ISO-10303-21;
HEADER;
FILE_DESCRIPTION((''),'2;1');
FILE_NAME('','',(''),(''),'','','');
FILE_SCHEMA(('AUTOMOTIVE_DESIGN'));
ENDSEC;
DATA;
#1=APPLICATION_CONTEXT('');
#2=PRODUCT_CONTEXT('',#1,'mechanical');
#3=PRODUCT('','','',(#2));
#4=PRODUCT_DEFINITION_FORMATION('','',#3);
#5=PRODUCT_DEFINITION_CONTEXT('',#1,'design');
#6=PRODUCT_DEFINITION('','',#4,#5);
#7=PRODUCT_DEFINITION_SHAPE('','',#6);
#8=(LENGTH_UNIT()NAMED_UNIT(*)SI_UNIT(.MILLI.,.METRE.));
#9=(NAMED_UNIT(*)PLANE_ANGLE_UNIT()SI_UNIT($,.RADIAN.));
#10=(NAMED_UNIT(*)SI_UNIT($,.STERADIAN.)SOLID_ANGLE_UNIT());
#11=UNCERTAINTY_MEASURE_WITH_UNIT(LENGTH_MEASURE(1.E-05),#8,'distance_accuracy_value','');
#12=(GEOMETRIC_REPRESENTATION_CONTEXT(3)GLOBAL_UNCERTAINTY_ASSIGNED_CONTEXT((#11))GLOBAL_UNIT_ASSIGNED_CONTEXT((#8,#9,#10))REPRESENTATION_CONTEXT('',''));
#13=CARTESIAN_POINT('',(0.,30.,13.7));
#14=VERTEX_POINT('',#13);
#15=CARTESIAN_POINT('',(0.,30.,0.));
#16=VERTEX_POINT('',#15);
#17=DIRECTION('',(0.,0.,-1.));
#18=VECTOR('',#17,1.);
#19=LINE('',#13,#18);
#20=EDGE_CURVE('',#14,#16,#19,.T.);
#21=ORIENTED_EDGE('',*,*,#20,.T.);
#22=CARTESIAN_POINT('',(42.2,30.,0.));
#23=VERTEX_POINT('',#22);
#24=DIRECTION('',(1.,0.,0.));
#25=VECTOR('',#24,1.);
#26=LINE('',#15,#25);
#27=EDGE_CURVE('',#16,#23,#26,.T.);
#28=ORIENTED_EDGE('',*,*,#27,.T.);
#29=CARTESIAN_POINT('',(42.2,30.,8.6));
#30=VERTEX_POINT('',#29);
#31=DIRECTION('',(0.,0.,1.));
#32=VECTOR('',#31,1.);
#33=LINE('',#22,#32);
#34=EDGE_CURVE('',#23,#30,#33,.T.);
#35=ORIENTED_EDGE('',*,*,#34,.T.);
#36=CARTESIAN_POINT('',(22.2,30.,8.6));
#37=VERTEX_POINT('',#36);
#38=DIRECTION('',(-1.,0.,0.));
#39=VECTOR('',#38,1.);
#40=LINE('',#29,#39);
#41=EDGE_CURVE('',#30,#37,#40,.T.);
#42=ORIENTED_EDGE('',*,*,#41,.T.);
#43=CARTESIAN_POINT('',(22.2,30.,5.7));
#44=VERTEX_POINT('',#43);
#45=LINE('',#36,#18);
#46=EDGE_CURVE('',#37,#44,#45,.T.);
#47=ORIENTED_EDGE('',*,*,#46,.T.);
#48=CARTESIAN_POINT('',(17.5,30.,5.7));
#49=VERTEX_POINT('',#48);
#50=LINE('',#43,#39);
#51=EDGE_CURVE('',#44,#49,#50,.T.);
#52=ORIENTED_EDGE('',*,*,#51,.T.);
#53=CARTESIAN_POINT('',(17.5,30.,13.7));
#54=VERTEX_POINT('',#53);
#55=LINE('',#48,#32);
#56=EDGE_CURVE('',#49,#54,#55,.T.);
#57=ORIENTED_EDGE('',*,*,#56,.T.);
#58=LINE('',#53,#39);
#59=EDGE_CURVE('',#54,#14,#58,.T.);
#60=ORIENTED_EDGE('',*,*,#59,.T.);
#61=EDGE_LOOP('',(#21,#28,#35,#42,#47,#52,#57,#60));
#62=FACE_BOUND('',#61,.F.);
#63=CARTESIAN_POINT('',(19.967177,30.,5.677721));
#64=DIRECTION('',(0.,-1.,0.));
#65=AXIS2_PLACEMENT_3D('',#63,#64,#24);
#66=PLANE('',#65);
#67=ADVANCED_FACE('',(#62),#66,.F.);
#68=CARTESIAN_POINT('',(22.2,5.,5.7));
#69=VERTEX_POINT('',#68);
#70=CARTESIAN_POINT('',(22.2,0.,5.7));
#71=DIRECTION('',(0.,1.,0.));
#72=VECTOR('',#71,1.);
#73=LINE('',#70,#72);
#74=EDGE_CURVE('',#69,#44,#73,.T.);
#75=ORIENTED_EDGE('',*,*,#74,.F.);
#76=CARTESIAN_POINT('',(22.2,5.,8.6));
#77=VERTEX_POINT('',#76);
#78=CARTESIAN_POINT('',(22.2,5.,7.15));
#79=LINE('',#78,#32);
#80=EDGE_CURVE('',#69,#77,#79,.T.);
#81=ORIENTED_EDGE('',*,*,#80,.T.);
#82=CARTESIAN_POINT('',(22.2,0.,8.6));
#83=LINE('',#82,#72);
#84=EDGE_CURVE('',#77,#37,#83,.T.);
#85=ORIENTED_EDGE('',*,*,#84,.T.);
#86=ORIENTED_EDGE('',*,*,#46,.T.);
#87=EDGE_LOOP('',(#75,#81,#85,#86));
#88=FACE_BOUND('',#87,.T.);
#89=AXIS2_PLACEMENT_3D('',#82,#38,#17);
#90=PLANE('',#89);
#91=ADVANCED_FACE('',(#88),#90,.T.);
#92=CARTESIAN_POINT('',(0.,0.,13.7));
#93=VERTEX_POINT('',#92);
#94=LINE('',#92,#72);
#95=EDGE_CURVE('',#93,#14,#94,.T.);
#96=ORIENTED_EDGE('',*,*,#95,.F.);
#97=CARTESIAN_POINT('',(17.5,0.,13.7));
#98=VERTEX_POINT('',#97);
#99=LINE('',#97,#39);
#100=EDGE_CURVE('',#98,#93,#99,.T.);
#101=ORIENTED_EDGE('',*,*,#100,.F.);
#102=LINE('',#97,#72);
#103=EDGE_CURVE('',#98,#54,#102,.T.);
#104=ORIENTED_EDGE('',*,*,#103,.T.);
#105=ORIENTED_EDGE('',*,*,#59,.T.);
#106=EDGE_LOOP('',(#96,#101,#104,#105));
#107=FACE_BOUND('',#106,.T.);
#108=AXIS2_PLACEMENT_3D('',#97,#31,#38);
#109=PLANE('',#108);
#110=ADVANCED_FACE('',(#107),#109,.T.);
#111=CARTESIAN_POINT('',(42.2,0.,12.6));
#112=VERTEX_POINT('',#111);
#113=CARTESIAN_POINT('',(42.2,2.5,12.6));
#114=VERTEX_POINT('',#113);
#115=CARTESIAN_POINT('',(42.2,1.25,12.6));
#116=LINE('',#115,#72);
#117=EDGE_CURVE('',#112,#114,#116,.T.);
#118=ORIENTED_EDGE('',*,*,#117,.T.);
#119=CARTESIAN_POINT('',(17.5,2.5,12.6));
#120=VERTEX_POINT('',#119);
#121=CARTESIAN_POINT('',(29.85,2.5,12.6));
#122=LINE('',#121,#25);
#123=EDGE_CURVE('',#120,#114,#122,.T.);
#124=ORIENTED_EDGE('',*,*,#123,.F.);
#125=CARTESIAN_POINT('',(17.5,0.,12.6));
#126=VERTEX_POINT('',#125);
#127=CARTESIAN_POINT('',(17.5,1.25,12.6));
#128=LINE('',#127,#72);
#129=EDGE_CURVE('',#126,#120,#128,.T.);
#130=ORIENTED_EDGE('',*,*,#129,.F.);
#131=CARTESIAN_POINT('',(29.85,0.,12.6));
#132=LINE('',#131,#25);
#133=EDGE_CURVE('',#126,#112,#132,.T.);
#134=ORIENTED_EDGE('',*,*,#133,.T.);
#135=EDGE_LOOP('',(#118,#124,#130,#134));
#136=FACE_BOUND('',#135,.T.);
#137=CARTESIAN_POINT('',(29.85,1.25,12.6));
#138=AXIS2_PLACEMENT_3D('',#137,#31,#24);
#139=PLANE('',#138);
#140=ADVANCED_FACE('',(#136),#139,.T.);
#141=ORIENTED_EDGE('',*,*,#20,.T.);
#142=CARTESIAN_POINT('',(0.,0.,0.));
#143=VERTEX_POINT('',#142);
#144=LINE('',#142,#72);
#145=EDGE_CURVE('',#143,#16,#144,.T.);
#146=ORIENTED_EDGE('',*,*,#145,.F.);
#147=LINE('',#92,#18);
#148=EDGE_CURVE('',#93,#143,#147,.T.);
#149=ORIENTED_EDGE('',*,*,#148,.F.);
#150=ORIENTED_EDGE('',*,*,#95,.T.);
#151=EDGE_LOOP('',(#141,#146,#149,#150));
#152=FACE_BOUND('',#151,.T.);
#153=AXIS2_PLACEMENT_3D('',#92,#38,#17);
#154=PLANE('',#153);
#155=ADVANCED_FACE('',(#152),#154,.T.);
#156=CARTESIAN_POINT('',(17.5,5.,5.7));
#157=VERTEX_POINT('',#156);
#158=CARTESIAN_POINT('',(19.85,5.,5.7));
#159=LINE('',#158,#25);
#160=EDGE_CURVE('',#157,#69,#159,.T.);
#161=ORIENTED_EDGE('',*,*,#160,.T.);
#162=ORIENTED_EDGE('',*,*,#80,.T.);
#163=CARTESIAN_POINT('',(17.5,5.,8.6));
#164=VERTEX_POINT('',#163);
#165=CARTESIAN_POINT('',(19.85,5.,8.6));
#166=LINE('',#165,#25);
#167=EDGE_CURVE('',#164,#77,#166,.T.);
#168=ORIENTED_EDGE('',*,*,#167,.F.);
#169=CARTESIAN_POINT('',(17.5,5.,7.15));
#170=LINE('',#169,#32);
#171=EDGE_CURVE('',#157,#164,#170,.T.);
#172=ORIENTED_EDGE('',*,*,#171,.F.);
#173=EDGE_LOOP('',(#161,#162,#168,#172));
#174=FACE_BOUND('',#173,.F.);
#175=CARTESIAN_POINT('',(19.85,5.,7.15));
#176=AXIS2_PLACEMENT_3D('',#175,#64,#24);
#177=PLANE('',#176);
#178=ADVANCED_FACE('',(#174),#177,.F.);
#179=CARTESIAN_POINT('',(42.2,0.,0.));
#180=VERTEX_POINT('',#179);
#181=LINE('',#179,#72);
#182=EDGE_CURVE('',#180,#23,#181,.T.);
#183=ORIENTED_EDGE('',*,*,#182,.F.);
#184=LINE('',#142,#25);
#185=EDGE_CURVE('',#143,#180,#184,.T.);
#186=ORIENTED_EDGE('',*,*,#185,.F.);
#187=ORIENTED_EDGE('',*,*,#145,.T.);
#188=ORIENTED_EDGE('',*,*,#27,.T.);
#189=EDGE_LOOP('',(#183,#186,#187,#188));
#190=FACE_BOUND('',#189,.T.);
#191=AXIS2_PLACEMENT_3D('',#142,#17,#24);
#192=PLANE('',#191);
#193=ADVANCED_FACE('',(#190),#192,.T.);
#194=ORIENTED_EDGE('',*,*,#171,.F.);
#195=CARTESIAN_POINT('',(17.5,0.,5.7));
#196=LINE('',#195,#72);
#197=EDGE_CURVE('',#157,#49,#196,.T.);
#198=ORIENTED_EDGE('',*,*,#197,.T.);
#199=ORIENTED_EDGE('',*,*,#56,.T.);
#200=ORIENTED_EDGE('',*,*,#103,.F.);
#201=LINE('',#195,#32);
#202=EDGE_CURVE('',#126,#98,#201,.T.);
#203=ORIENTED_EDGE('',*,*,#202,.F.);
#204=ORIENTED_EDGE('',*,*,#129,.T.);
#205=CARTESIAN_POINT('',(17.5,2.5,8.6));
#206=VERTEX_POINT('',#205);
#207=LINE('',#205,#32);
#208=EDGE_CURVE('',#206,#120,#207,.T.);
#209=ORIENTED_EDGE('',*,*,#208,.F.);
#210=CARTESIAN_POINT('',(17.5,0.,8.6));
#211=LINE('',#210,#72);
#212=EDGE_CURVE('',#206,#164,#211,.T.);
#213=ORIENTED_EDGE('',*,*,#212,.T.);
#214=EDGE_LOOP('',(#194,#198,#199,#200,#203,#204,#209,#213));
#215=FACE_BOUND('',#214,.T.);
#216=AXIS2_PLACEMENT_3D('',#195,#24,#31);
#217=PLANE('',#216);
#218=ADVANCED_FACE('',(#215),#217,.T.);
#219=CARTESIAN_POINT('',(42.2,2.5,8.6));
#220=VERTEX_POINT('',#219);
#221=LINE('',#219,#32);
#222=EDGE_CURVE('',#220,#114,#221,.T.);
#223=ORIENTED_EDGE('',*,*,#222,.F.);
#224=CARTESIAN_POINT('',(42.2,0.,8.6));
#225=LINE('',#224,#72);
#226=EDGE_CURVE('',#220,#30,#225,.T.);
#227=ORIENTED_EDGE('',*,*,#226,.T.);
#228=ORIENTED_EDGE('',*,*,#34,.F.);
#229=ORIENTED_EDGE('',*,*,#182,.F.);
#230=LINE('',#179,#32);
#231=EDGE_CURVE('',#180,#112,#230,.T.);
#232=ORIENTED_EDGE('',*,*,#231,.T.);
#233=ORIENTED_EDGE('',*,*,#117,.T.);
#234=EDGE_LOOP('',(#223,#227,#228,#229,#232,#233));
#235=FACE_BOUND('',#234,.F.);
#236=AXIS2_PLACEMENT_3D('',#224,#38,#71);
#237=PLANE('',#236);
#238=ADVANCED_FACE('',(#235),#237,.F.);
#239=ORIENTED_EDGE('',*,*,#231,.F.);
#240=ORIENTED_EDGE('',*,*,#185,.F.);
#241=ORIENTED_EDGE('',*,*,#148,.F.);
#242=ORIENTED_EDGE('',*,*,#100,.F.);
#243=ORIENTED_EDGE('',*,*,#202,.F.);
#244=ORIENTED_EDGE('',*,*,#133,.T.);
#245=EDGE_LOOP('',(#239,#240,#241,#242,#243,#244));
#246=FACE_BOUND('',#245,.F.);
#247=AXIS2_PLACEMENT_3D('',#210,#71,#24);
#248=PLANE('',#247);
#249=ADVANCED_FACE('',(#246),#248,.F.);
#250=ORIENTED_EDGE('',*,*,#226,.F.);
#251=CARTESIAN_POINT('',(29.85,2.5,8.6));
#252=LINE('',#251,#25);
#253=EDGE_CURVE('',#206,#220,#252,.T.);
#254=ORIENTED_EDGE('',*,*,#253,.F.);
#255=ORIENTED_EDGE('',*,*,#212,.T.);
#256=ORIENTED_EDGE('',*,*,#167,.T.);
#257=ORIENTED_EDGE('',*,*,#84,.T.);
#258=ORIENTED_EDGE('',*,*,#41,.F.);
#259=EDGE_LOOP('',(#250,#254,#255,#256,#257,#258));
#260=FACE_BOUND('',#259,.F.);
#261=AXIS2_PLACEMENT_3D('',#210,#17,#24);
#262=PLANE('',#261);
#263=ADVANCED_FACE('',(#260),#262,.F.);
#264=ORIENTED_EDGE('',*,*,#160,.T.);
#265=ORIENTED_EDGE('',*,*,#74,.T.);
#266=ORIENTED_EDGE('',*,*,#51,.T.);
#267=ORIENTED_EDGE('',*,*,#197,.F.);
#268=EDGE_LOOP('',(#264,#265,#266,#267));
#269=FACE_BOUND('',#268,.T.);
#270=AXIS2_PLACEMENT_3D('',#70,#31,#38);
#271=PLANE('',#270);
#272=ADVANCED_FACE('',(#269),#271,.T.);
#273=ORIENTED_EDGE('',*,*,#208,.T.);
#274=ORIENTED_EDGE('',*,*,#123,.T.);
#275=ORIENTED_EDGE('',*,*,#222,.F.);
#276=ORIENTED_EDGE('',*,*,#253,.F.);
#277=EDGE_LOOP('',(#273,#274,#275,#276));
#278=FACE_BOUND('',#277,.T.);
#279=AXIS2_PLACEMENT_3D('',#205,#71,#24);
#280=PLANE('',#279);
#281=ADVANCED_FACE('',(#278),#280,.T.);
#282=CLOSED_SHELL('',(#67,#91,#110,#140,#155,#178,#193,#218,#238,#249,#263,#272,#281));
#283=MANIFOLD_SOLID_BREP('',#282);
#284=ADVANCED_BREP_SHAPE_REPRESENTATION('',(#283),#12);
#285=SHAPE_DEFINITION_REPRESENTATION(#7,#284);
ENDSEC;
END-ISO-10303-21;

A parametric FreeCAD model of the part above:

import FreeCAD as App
import Part
import Sketcher

V = App.Vector
Q = App.Units.Quantity


def add_polygon(sketch, points):
    """Adds a closed chain of lines whose ends are joined by coincident constraints."""
    first, n = sketch.GeometryCount, len(points)
    for a, b in zip(points, points[1:] + points[:1]):
        sketch.addGeometry(Part.LineSegment(App.Vector(*a, 0), App.Vector(*b, 0)), False)
    for i in range(n):
        sketch.addConstraint(Sketcher.Constraint("Coincident", first + i, 2, first + (i + 1) % n, 1))

doc = App.newDocument("Part")
body = doc.addObject("PartDesign::Body", "Body")

# Sketch on XZ plane
sketch1 = body.newObject("Sketcher::SketchObject", "Sketch")
sketch1.AttachmentSupport = (doc.getObject("XZ_Plane"), [""])
sketch1.MapMode = "FlatFace"
add_polygon(sketch1, [(0, 13.7), (0, 0), (42.2, 0), (42.2, 8.6), (22.2, 8.6), (22.2, 5.7), (17.5, 5.7), (17.5, 13.7)])  # lines 0-7
sketch1.addConstraint(Sketcher.Constraint("Vertical", 0))
sketch1.addConstraint(Sketcher.Constraint("Horizontal", 1))
sketch1.addConstraint(Sketcher.Constraint("Vertical", 2))
sketch1.addConstraint(Sketcher.Constraint("Horizontal", 3))
sketch1.addConstraint(Sketcher.Constraint("Vertical", 4))
sketch1.addConstraint(Sketcher.Constraint("Horizontal", 5))
sketch1.addConstraint(Sketcher.Constraint("Vertical", 6))
sketch1.addConstraint(Sketcher.Constraint("Horizontal", 7))
sketch1.addConstraint(Sketcher.Constraint("Coincident", 0, 2, -1, 1))
sketch1.addConstraint(Sketcher.Constraint("DistanceX", 3, 2, 3, 1, Q("20 mm")))
sketch1.addConstraint(Sketcher.Constraint("DistanceY", 6, 1, 6, 2, Q("8 mm")))
sketch1.addConstraint(Sketcher.Constraint("DistanceX", 1, 1, 1, 2, Q("42.2 mm")))
sketch1.addConstraint(Sketcher.Constraint("DistanceX", 5, 2, 5, 1, Q("4.7 mm")))
sketch1.addConstraint(Sketcher.Constraint("DistanceY", 0, 2, 0, 1, Q("13.7 mm")))
sketch1.addConstraint(Sketcher.Constraint("DistanceY", 2, 1, 2, 2, Q("8.6 mm")))
pad1 = body.newObject("PartDesign::Pad", "Pad")
pad1.Profile = sketch1
pad1.Length = 30
pad1.Reversed = True

# Sketch on XZ plane
sketch2 = body.newObject("Sketcher::SketchObject", "Sketch001")
sketch2.AttachmentSupport = (doc.getObject("XZ_Plane"), [""])
sketch2.MapMode = "FlatFace"
add_polygon(sketch2, [(17.5, 8.6), (17.5, 5.7), (22.2, 5.7), (22.2, 8.6)])  # lines 0-3
sketch2.addConstraint(Sketcher.Constraint("Vertical", 0))
sketch2.addConstraint(Sketcher.Constraint("Horizontal", 1))
sketch2.addConstraint(Sketcher.Constraint("Vertical", 2))
sketch2.addConstraint(Sketcher.Constraint("Horizontal", 3))
sketch2.addConstraint(Sketcher.Constraint("DistanceX", 1, 1, 1, 2, Q("4.7 mm")))
sketch2.addConstraint(Sketcher.Constraint("DistanceY", 0, 2, 0, 1, Q("2.9 mm")))
sketch2.addConstraint(Sketcher.Constraint("DistanceX", -1, 1, 0, 2, Q("17.5 mm")))
sketch2.addConstraint(Sketcher.Constraint("DistanceY", -1, 1, 0, 2, Q("5.7 mm")))
pad2 = body.newObject("PartDesign::Pad", "Pad001")
pad2.Profile = sketch2
pad2.Length = 5
pad2.Reversed = True

# Sketch on XY plane
sketch3 = body.newObject("Sketcher::SketchObject", "Sketch002")
sketch3.AttachmentSupport = (doc.getObject("XY_Plane"), [""])
sketch3.MapMode = "FlatFace"
sketch3.AttachmentOffset = App.Placement(V(0, 0, 8.6), App.Rotation())
add_polygon(sketch3, [(17.5, 2.5), (17.5, 0), (42.2, 0), (42.2, 2.5)])  # lines 0-3
sketch3.addConstraint(Sketcher.Constraint("Vertical", 0))
sketch3.addConstraint(Sketcher.Constraint("Horizontal", 1))
sketch3.addConstraint(Sketcher.Constraint("Vertical", 2))
sketch3.addConstraint(Sketcher.Constraint("Horizontal", 3))
sketch3.addConstraint(Sketcher.Constraint("PointOnObject", 0, 2, -1))
sketch3.addConstraint(Sketcher.Constraint("DistanceX", 1, 1, 1, 2, Q("24.7 mm")))
sketch3.addConstraint(Sketcher.Constraint("DistanceY", 0, 2, 0, 1, Q("2.5 mm")))
sketch3.addConstraint(Sketcher.Constraint("DistanceX", -1, 1, 0, 2, Q("17.5 mm")))
pad3 = body.newObject("PartDesign::Pad", "Pad002")
pad3.Profile = sketch3
pad3.Length = 4

doc.recompute()
